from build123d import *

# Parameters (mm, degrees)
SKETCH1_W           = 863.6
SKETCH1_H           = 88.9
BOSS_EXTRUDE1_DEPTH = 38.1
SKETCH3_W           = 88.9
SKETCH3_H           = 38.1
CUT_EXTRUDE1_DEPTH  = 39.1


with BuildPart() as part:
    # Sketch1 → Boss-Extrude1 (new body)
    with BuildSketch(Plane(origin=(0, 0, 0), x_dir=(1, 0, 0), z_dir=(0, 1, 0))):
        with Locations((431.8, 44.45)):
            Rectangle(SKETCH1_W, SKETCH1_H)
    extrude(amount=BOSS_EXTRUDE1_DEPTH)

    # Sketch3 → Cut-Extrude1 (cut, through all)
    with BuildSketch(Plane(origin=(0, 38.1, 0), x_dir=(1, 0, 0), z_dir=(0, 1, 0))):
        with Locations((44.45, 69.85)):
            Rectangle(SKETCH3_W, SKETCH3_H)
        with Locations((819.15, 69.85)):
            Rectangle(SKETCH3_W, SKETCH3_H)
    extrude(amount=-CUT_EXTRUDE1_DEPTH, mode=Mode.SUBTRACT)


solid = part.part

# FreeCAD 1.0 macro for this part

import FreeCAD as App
import Part
import Sketcher
from FreeCAD import Vector
Q = App.Units.Quantity


def add_polygon(sketch, points):
    """Adds a closed chain of lines whose ends are joined by coincident constraints."""
    first, n = sketch.GeometryCount, len(points)
    for a, b in zip(points, points[1:] + points[:1]):
        sketch.addGeometry(Part.LineSegment(App.Vector(*a, 0), App.Vector(*b, 0)), False)
    for i in range(n):
        sketch.addConstraint(Sketcher.Constraint("Coincident", first + i, 2, first + (i + 1) % n, 1))

doc = App.newDocument("Part")
params = doc.addObject("Spreadsheet::Sheet", "Params")
for row, (alias, value) in enumerate([
    ("sketch1_width", "34 in"),
    ("sketch1_height", "3.5 in"),
    ("pad1_length", "1.5 in"),
    ("sketch2_width", "3.5 in"),
    ("sketch2_height", "1.5 in"),
], start=1):
    params.set(f"A{row}", alias)
    params.set(f"B{row}", "=" + value)
    params.setAlias(f"B{row}", alias)

body = doc.addObject("PartDesign::Body", "Body")

# Sketch on XZ plane
sketch1 = body.newObject("Sketcher::SketchObject", "Sketch")
sketch1.AttachmentSupport = (doc.getObject("XZ_Plane"), [""])
sketch1.MapMode = "FlatFace"
add_polygon(sketch1, [(0, -88.9), (0, 0), (863.6, 0), (863.6, -88.9)])  # lines 0-3
sketch1.addConstraint([
    Sketcher.Constraint("Vertical", 0),
    Sketcher.Constraint("Horizontal", 1),
    Sketcher.Constraint("Vertical", 2),
    Sketcher.Constraint("Horizontal", 3),
    Sketcher.Constraint("Coincident", 0, 2, -1, 1),
    Sketcher.Constraint("DistanceX", 1, 1, 1, 2, Q("34 in")),
    Sketcher.Constraint("DistanceY", 0, 1, 0, 2, Q("3.5 in")),
])
sketch1.setExpression("Constraints[9]", "Params.sketch1_width")
sketch1.setExpression("Constraints[10]", "Params.sketch1_height")
pad1 = body.newObject("PartDesign::Pad", "Pad")
pad1.Profile = sketch1
pad1.setExpression("Length", "Params.pad1_length")
pad1.Reversed = True

# Sketch on XZ plane
sketch2 = body.newObject("Sketcher::SketchObject", "Sketch001")
sketch2.AttachmentSupport = (doc.getObject("XZ_Plane"), [""])
sketch2.MapMode = "FlatFace"
sketch2.AttachmentOffset = App.Placement(Vector(0, 0, -1.5 * 25.4), App.Rotation())
add_polygon(sketch2, [(0, -88.9), (0, -50.8), (88.9, -50.8), (88.9, -88.9)])  # lines 0-3
add_polygon(sketch2, [(774.7, -88.9), (774.7, -50.8), (863.6, -50.8), (863.6, -88.9)])  # lines 4-7
sketch2.addConstraint([
    Sketcher.Constraint("Vertical", 0),
    Sketcher.Constraint("Horizontal", 1),
    Sketcher.Constraint("Vertical", 2),
    Sketcher.Constraint("Horizontal", 3),
    Sketcher.Constraint("Vertical", 4),
    Sketcher.Constraint("Horizontal", 5),
    Sketcher.Constraint("Vertical", 6),
    Sketcher.Constraint("Horizontal", 7),
    Sketcher.Constraint("PointOnObject", 0, 2, -2),
    Sketcher.Constraint("Horizontal", 1, 2, 4, 2),
    Sketcher.Constraint("Horizontal", 3, 2, 6, 2),
    Sketcher.Constraint("Equal", 3, 5),
    Sketcher.Constraint("DistanceX", 1, 1, 1, 2, Q("3.5 in")),
    Sketcher.Constraint("DistanceY", 0, 1, 0, 2, Q("1.5 in")),
    Sketcher.Constraint("DistanceY", 0, 2, -1, 1, Q("2 in")),
    Sketcher.Constraint("DistanceX", -1, 1, 5, 2, Q("34 in")),
])
sketch2.setExpression("Constraints[20]", "Params.sketch2_width")
sketch2.setExpression("Constraints[21]", "Params.sketch2_height")
pocket1 = body.newObject("PartDesign::Pocket", "Pocket")
pocket1.Profile = sketch2
pocket1.Type = "ThroughAll"
pocket1.Reversed = True

doc.recompute()
